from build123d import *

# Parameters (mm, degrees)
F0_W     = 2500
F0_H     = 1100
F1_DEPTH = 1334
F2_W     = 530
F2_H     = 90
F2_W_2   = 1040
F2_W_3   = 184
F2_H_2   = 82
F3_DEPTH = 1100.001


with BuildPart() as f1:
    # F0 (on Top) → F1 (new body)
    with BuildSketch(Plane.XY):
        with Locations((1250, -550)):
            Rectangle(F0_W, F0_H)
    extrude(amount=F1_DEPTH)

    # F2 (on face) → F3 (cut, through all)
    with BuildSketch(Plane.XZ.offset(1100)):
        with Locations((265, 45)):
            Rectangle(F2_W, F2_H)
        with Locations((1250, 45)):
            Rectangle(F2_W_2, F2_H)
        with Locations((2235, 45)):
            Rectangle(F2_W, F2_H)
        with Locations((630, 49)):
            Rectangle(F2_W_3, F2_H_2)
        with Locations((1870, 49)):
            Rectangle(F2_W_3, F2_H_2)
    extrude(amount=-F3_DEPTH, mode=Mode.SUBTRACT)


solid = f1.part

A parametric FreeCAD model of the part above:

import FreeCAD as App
import Part
import Sketcher
from FreeCAD import Vector

doc = App.newDocument("Part")
body = doc.addObject("PartDesign::Body", "Body")

sketch1 = body.newObject("Sketcher::SketchObject", "Sketch")
sketch1.AttachmentSupport = (doc.getObject("XY_Plane"), [""])
sketch1.MapMode = "FlatFace"
sketch1.addGeometry(Part.LineSegment(Vector(0, 0, 0), Vector(0, -1100, 0)), False)
sketch1.addGeometry(Part.LineSegment(Vector(0, -1100, 0), Vector(2500, -1100, 0)), False)
sketch1.addGeometry(Part.LineSegment(Vector(2500, -1100, 0), Vector(2500, 0, 0)), False)
sketch1.addGeometry(Part.LineSegment(Vector(2500, 0, 0), Vector(0, 0, 0)), False)
sketch1.addConstraint(Sketcher.Constraint("Coincident", 0, 2, 1, 1))
sketch1.addConstraint(Sketcher.Constraint("Coincident", 1, 2, 2, 1))
sketch1.addConstraint(Sketcher.Constraint("Coincident", 2, 2, 3, 1))
sketch1.addConstraint(Sketcher.Constraint("Coincident", 3, 2, 0, 1))
sketch1.addConstraint(Sketcher.Constraint("Vertical", 0))
sketch1.addConstraint(Sketcher.Constraint("Horizontal", 1))
sketch1.addConstraint(Sketcher.Constraint("Vertical", 2))
sketch1.addConstraint(Sketcher.Constraint("Horizontal", 3))
sketch1.addConstraint(Sketcher.Constraint("Coincident", 3, 2, -1, 1))
sketch1.addConstraint(Sketcher.Constraint("DistanceX", 1, 1, 1, 2, 2500.0))
sketch1.addConstraint(Sketcher.Constraint("DistanceY", 0, 2, 0, 1, 1100.0))
pad1 = body.newObject("PartDesign::Pad", "Pad")
pad1.Profile = sketch1
pad1.Length = 1334

sketch2 = body.newObject("Sketcher::SketchObject", "Sketch001")
sketch2.AttachmentSupport = (doc.getObject("XZ_Plane"), [""])
sketch2.MapMode = "FlatFace"
sketch2.AttachmentOffset = App.Placement(Vector(0, 0, 1100), App.Rotation())
sketch2.addGeometry(Part.LineSegment(Vector(0, 90, 0), Vector(0, 0, 0)), False)
sketch2.addGeometry(Part.LineSegment(Vector(0, 0, 0), Vector(530, 0, 0)), False)
sketch2.addGeometry(Part.LineSegment(Vector(530, 0, 0), Vector(530, 90, 0)), False)
sketch2.addGeometry(Part.LineSegment(Vector(530, 90, 0), Vector(0, 90, 0)), False)
sketch2.addGeometry(Part.LineSegment(Vector(730, 90, 0), Vector(730, 0, 0)), False)
sketch2.addGeometry(Part.LineSegment(Vector(730, 0, 0), Vector(1770, 0, 0)), False)
sketch2.addGeometry(Part.LineSegment(Vector(1770, 0, 0), Vector(1770, 90, 0)), False)
sketch2.addGeometry(Part.LineSegment(Vector(1770, 90, 0), Vector(730, 90, 0)), False)
sketch2.addGeometry(Part.LineSegment(Vector(1970, 90, 0), Vector(1970, 0, 0)), False)
sketch2.addGeometry(Part.LineSegment(Vector(1970, 0, 0), Vector(2500, 0, 0)), False)
sketch2.addGeometry(Part.LineSegment(Vector(2500, 0, 0), Vector(2500, 90, 0)), False)
sketch2.addGeometry(Part.LineSegment(Vector(2500, 90, 0), Vector(1970, 90, 0)), False)
sketch2.addGeometry(Part.LineSegment(Vector(538, 90, 0), Vector(538, 8, 0)), False)
sketch2.addGeometry(Part.LineSegment(Vector(538, 8, 0), Vector(722, 8, 0)), False)
sketch2.addGeometry(Part.LineSegment(Vector(722, 8, 0), Vector(722, 90, 0)), False)
sketch2.addGeometry(Part.LineSegment(Vector(722, 90, 0), Vector(538, 90, 0)), False)
sketch2.addGeometry(Part.LineSegment(Vector(1778, 90, 0), Vector(1778, 8, 0)), False)
sketch2.addGeometry(Part.LineSegment(Vector(1778, 8, 0), Vector(1962, 8, 0)), False)
sketch2.addGeometry(Part.LineSegment(Vector(1962, 8, 0), Vector(1962, 90, 0)), False)
sketch2.addGeometry(Part.LineSegment(Vector(1962, 90, 0), Vector(1778, 90, 0)), False)
sketch2.addConstraint(Sketcher.Constraint("Coincident", 0, 2, 1, 1))
sketch2.addConstraint(Sketcher.Constraint("Coincident", 1, 2, 2, 1))
sketch2.addConstraint(Sketcher.Constraint("Coincident", 2, 2, 3, 1))
sketch2.addConstraint(Sketcher.Constraint("Coincident", 3, 2, 0, 1))
sketch2.addConstraint(Sketcher.Constraint("Coincident", 4, 2, 5, 1))
sketch2.addConstraint(Sketcher.Constraint("Coincident", 5, 2, 6, 1))
sketch2.addConstraint(Sketcher.Constraint("Coincident", 6, 2, 7, 1))
sketch2.addConstraint(Sketcher.Constraint("Coincident", 7, 2, 4, 1))
sketch2.addConstraint(Sketcher.Constraint("Coincident", 8, 2, 9, 1))
sketch2.addConstraint(Sketcher.Constraint("Coincident", 9, 2, 10, 1))
sketch2.addConstraint(Sketcher.Constraint("Coincident", 10, 2, 11, 1))
sketch2.addConstraint(Sketcher.Constraint("Coincident", 11, 2, 8, 1))
sketch2.addConstraint(Sketcher.Constraint("Coincident", 12, 2, 13, 1))
sketch2.addConstraint(Sketcher.Constraint("Coincident", 13, 2, 14, 1))
sketch2.addConstraint(Sketcher.Constraint("Coincident", 14, 2, 15, 1))
sketch2.addConstraint(Sketcher.Constraint("Coincident", 15, 2, 12, 1))
sketch2.addConstraint(Sketcher.Constraint("Coincident", 16, 2, 17, 1))
sketch2.addConstraint(Sketcher.Constraint("Coincident", 17, 2, 18, 1))
sketch2.addConstraint(Sketcher.Constraint("Coincident", 18, 2, 19, 1))
sketch2.addConstraint(Sketcher.Constraint("Coincident", 19, 2, 16, 1))
sketch2.addConstraint(Sketcher.Constraint("Vertical", 0))
sketch2.addConstraint(Sketcher.Constraint("Horizontal", 1))
sketch2.addConstraint(Sketcher.Constraint("Vertical", 2))
sketch2.addConstraint(Sketcher.Constraint("Horizontal", 3))
sketch2.addConstraint(Sketcher.Constraint("Vertical", 4))
sketch2.addConstraint(Sketcher.Constraint("Horizontal", 5))
sketch2.addConstraint(Sketcher.Constraint("Vertical", 6))
sketch2.addConstraint(Sketcher.Constraint("Horizontal", 7))
sketch2.addConstraint(Sketcher.Constraint("Vertical", 8))
sketch2.addConstraint(Sketcher.Constraint("Horizontal", 9))
sketch2.addConstraint(Sketcher.Constraint("Vertical", 10))
sketch2.addConstraint(Sketcher.Constraint("Horizontal", 11))
sketch2.addConstraint(Sketcher.Constraint("Vertical", 12))
sketch2.addConstraint(Sketcher.Constraint("Horizontal", 13))
sketch2.addConstraint(Sketcher.Constraint("Vertical", 14))
sketch2.addConstraint(Sketcher.Constraint("Horizontal", 15))
sketch2.addConstraint(Sketcher.Constraint("Vertical", 16))
sketch2.addConstraint(Sketcher.Constraint("Horizontal", 17))
sketch2.addConstraint(Sketcher.Constraint("Vertical", 18))
sketch2.addConstraint(Sketcher.Constraint("Horizontal", 19))
sketch2.addConstraint(Sketcher.Constraint("Coincident", 0, 2, -1, 1))
sketch2.addConstraint(Sketcher.Constraint("PointOnObject", 4, 2, -1))
sketch2.addConstraint(Sketcher.Constraint("PointOnObject", 8, 2, -1))
sketch2.addConstraint(Sketcher.Constraint("Horizontal", 3, 2, 6, 2))
sketch2.addConstraint(Sketcher.Constraint("Horizontal", 7, 2, 10, 2))
sketch2.addConstraint(Sketcher.Constraint("Horizontal", 11, 2, 14, 2))
sketch2.addConstraint(Sketcher.Constraint("Horizontal", 13, 2, 16, 2))
sketch2.addConstraint(Sketcher.Constraint("Horizontal", 15, 2, 18, 2))
sketch2.addConstraint(Sketcher.Constraint("Equal", 3, 9))
sketch2.addConstraint(Sketcher.Constraint("Equal", 15, 17))
sketch2.addConstraint(Sketcher.Constraint("DistanceX", 1, 1, 1, 2, 530.0))
sketch2.addConstraint(Sketcher.Constraint("DistanceX", 5, 1, 5, 2, 1040.0))
sketch2.addConstraint(Sketcher.Constraint("DistanceX", 13, 1, 13, 2, 184.0))
sketch2.addConstraint(Sketcher.Constraint("DistanceY", 0, 2, 0, 1, 90.0))
sketch2.addConstraint(Sketcher.Constraint("DistanceY", 12, 2, 12, 1, 82.0))
sketch2.addConstraint(Sketcher.Constraint("DistanceX", -1, 1, 4, 2, 730.0))
sketch2.addConstraint(Sketcher.Constraint("DistanceX", -1, 1, 8, 2, 1970.0))
sketch2.addConstraint(Sketcher.Constraint("DistanceX", -1, 1, 12, 2, 538.0))
sketch2.addConstraint(Sketcher.Constraint("DistanceX", -1, 1, 16, 2, 1778.0))
pocket1 = body.newObject("PartDesign::Pocket", "Pocket")
pocket1.Profile = sketch2
pocket1.Type = "ThroughAll"

doc.recompute()
